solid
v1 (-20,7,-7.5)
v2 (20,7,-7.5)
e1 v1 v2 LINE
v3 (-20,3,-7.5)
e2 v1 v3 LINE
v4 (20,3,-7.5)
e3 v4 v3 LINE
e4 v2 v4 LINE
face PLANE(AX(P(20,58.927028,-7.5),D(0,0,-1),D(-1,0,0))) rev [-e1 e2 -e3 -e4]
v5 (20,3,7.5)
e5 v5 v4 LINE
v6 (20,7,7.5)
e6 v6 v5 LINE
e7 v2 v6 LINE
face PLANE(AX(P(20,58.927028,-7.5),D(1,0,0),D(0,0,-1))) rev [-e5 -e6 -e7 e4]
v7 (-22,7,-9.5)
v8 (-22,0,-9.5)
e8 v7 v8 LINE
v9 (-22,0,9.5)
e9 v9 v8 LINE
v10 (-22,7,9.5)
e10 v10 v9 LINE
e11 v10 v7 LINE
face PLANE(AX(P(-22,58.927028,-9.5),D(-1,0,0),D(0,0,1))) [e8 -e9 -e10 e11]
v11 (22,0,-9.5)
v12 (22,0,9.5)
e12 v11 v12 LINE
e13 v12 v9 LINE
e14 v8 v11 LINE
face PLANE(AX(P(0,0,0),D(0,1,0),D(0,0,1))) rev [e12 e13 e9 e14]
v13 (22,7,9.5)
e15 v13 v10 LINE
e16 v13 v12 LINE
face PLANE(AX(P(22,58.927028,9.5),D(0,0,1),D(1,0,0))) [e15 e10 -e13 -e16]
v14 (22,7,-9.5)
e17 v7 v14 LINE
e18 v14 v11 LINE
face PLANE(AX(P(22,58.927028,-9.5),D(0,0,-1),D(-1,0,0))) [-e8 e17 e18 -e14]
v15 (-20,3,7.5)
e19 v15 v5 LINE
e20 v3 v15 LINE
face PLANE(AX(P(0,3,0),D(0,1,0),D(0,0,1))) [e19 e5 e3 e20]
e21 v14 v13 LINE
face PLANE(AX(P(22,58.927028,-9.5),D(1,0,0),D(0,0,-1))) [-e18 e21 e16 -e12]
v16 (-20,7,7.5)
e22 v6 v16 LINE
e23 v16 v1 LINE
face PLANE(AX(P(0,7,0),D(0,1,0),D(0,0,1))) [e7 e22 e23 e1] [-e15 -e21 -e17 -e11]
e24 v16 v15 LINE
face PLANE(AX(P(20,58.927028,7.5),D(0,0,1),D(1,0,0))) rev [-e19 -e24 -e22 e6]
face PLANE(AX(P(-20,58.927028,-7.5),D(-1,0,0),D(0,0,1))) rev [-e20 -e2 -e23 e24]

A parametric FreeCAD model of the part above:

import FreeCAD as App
import Part
import Sketcher
from FreeCAD import Vector
Q = App.Units.Quantity


def add_polygon(sketch, points):
    """Adds a closed chain of lines whose ends are joined by coincident constraints."""
    first, n = sketch.GeometryCount, len(points)
    for a, b in zip(points, points[1:] + points[:1]):
        sketch.addGeometry(Part.LineSegment(App.Vector(*a, 0), App.Vector(*b, 0)), False)
    for i in range(n):
        sketch.addConstraint(Sketcher.Constraint("Coincident", first + i, 2, first + (i + 1) % n, 1))

doc = App.newDocument("Part")
body = doc.addObject("PartDesign::Body", "Body")

sketch1 = body.newObject("Sketcher::SketchObject", "Sketch")
sketch1.AttachmentSupport = (doc.getObject("XZ_Plane"), [""])
sketch1.MapMode = "FlatFace"
add_polygon(sketch1, [(-20, -8), (-20, 8), (20, 8), (20, -8)])
sketch1.addConstraint([
    Sketcher.Constraint("Vertical", 0),
    Sketcher.Constraint("Horizontal", 1),
    Sketcher.Constraint("Vertical", 2),
    Sketcher.Constraint("Horizontal", 3),
    Sketcher.Constraint("Symmetric", 0, 2, 2, 2, -1, 1),
    Sketcher.Constraint("DistanceX", 1, 1, 1, 2, Q("40 mm")),
    Sketcher.Constraint("DistanceY", 0, 1, 0, 2, Q("15 mm")),
])
pad1 = body.newObject("PartDesign::Pad", "Pad")
pad1.Profile = sketch1
pad1.Length = 3
pad1.Reversed = True

sketch2 = body.newObject("Sketcher::SketchObject", "Sketch001")
sketch2.AttachmentSupport = (doc.getObject("XZ_Plane"), [""])
sketch2.MapMode = "FlatFace"
add_polygon(sketch2, [(-22, 10), (-22, -10), (22, -10), (22, 10)])
add_polygon(sketch2, [(20, -8), (-20, -8), (-20, 8), (20, 8)])
sketch2.addConstraint([
    Sketcher.Constraint("Vertical", 0),
    Sketcher.Constraint("Horizontal", 1),
    Sketcher.Constraint("Vertical", 2),
    Sketcher.Constraint("Horizontal", 3),
    Sketcher.Constraint("Horizontal", 4),
    Sketcher.Constraint("Vertical", 5),
    Sketcher.Constraint("Horizontal", 6),
    Sketcher.Constraint("Vertical", 7),
    Sketcher.Constraint("Symmetric", 0, 2, 2, 2, -1, 1),
    Sketcher.Constraint("Symmetric", 4, 2, 6, 2, -1, 1),
    Sketcher.Constraint("DistanceX", 1, 1, 1, 2, Q("44 mm")),
    Sketcher.Constraint("DistanceX", 4, 2, 4, 1, Q("40 mm")),
    Sketcher.Constraint("DistanceY", 0, 2, 0, 1, Q("19 mm")),
    Sketcher.Constraint("DistanceY", 5, 1, 5, 2, Q("15 mm")),
])
pad2 = body.newObject("PartDesign::Pad", "Pad001")
pad2.Profile = sketch2
pad2.Length = 7
pad2.Reversed = True

doc.recompute()
